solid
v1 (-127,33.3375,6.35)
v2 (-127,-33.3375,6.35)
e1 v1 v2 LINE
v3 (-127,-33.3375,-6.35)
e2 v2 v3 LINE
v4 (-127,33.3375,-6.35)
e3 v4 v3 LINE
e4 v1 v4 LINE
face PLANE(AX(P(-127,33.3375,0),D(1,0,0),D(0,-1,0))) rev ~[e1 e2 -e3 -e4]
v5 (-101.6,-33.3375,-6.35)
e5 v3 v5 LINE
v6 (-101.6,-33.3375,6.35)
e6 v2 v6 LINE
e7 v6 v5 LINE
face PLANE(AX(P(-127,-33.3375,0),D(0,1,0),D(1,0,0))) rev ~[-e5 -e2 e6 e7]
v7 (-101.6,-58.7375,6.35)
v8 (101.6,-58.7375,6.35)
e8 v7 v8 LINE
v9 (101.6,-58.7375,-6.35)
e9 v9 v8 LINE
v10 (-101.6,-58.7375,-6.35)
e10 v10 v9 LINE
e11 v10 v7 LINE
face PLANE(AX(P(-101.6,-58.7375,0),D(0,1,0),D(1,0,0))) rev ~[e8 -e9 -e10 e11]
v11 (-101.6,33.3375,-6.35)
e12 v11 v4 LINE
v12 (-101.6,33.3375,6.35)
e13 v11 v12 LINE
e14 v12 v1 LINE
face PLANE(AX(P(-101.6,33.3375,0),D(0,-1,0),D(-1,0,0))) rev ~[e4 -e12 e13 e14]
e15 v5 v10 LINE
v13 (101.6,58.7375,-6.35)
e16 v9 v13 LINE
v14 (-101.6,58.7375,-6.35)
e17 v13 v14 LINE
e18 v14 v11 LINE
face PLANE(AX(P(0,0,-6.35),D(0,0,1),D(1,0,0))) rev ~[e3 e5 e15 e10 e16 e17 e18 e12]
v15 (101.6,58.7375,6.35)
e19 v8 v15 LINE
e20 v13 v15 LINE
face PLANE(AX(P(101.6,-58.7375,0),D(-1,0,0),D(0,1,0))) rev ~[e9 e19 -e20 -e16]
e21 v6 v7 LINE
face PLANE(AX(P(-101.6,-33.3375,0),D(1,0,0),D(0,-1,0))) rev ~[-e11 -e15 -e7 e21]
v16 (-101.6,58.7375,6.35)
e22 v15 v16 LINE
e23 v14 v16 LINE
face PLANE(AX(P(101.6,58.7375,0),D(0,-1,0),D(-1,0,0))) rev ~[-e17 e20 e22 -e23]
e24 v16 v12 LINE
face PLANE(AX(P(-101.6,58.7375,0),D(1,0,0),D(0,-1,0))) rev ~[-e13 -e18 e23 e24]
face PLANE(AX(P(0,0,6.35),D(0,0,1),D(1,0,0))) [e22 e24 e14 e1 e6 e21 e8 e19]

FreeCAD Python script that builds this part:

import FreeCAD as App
import Part
import Sketcher

V = App.Vector
Q = App.Units.Quantity

doc = App.newDocument("Part")
params = doc.addObject("Spreadsheet::Sheet", "Params")
for row, (alias, value) in enumerate([
    ("sketch1_width", "8 in"),
    ("sketch1_width2", "1 in"),
    ("sketch1_height", "4.625 in"),
    ("pad1_length", "0.5 in"),
], start=1):
    params.set(f"A{row}", alias)
    params.set(f"B{row}", "=" + value)
    params.setAlias(f"B{row}", alias)

body = doc.addObject("PartDesign::Body", "Body")

# Sketch on XY plane
sketch1 = doc.addObject("Sketcher::SketchObject", "Sketch")
body.addObject(sketch1)
sketch1.AttachmentSupport = (doc.XY_Plane, [""])
sketch1.MapMode = "FlatFace"
sketch1.addGeometry([
    Part.LineSegment(V(-102, -33, 0), V(-102, -59, 0)),  # 0
    Part.LineSegment(V(-102, -59, 0), V(102, -59, 0)),  # 1
    Part.LineSegment(V(102, -59, 0), V(102, 59, 0)),  # 2
    Part.LineSegment(V(102, 59, 0), V(-102, 59, 0)),  # 3
    Part.LineSegment(V(-102, 59, 0), V(-102, 33, 0)),  # 4
    Part.LineSegment(V(-102, 33, 0), V(-127, 33, 0)),  # 5
    Part.LineSegment(V(-127, 33, 0), V(-127, -33, 0)),  # 6
    Part.LineSegment(V(-127, -33, 0), V(-102, -33, 0)),  # 7
], False)
sketch1.addConstraint([
    Sketcher.Constraint("Coincident", 0, 2, 1, 1),
    Sketcher.Constraint("Coincident", 1, 2, 2, 1),
    Sketcher.Constraint("Coincident", 2, 2, 3, 1),
    Sketcher.Constraint("Coincident", 3, 2, 4, 1),
    Sketcher.Constraint("Coincident", 4, 2, 5, 1),
    Sketcher.Constraint("Coincident", 5, 2, 6, 1),
    Sketcher.Constraint("Coincident", 6, 2, 7, 1),
    Sketcher.Constraint("Coincident", 7, 2, 0, 1),
    Sketcher.Constraint("Vertical", 0),
    Sketcher.Constraint("Horizontal", 1),
    Sketcher.Constraint("Vertical", 2),
    Sketcher.Constraint("Horizontal", 3),
    Sketcher.Constraint("Vertical", 4),
    Sketcher.Constraint("Horizontal", 5),
    Sketcher.Constraint("Vertical", 6),
    Sketcher.Constraint("Horizontal", 7),
    Sketcher.Constraint("Symmetric", 0, 2, 2, 2, -1, 1),
    Sketcher.Constraint("Symmetric", 4, 2, 7, 2, -1),
    Sketcher.Constraint("Equal", 7, 0),
    Sketcher.Constraint("DistanceX", 1, 1, 1, 2, Q("8 in")),
    Sketcher.Constraint("DistanceX", 5, 2, 5, 1, Q("1 in")),
    Sketcher.Constraint("DistanceY", 2, 1, 2, 2, Q("4.625 in")),
])
sketch1.setExpression("Constraints[19]", "Params.sketch1_width")
sketch1.setExpression("Constraints[20]", "Params.sketch1_width2")
sketch1.setExpression("Constraints[21]", "Params.sketch1_height")
pad1 = doc.addObject("PartDesign::Pad", "Pad")
body.addObject(pad1)
pad1.Profile = sketch1
pad1.setExpression("Length", "Params.pad1_length")
pad1.Midplane = True

doc.recompute()
